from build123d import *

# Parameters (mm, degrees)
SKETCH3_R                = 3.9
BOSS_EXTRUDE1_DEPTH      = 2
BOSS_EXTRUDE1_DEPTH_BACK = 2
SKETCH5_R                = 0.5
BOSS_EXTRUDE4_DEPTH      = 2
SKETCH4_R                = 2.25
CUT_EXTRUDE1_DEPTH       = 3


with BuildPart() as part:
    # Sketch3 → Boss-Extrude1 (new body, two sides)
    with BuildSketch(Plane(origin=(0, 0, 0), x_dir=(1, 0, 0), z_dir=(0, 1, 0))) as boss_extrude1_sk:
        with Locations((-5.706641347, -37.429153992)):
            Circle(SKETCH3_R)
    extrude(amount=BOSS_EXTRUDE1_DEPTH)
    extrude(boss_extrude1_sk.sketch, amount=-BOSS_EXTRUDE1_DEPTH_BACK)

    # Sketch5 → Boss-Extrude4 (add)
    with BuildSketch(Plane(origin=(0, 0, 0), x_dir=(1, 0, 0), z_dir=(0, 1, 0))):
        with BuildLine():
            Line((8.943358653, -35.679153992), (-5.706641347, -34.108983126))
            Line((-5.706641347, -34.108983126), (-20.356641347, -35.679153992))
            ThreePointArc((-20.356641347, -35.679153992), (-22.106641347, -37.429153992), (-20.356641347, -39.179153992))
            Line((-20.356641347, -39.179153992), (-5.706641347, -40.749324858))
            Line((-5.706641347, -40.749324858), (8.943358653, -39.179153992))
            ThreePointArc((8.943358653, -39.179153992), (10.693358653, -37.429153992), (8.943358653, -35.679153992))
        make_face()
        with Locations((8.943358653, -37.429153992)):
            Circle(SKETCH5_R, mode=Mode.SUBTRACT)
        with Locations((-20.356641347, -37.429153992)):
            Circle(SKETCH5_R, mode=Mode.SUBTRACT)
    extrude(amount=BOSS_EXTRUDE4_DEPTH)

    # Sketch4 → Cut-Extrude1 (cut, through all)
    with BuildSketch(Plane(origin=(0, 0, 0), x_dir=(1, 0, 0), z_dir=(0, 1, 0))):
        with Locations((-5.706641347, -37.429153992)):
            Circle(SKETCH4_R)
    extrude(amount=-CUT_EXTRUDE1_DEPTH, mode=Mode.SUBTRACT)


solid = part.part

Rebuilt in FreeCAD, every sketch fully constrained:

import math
import FreeCAD as App
import Part
import Sketcher

V = App.Vector

doc = App.newDocument("Part")
body = doc.addObject("PartDesign::Body", "Body")

sketch1 = doc.addObject("Sketcher::SketchObject", "Sketch")
body.addObject(sketch1)
sketch1.AttachmentSupport = (doc.XZ_Plane, [""])
sketch1.MapMode = "FlatFace"
sketch1.addGeometry(Part.Circle(V(-5.7, 37.4, 0), V(0, 0, 1), 3.9), False)
sketch1.addConstraint(Sketcher.Constraint("Diameter", 0, 7.8))
sketch1.addConstraint(Sketcher.Constraint("DistanceX", 0, 3, -1, 1, 5.706641))
sketch1.addConstraint(Sketcher.Constraint("DistanceY", -1, 1, 0, 3, 37.429154))
pad1 = doc.addObject("PartDesign::Pad", "Pad")
body.addObject(pad1)
pad1.Profile = sketch1
pad1.Type = "TwoLengths"
pad1.Length = 2
pad1.Length2 = 2
pad1.Reversed = True

sketch2 = doc.addObject("Sketcher::SketchObject", "Sketch001")
body.addObject(sketch2)
sketch2.AttachmentSupport = (doc.XZ_Plane, [""])
sketch2.MapMode = "FlatFace"
sketch2.addGeometry(Part.LineSegment(V(8.9, 35.7, 0), V(-5.7, 34.1, 0)), False)
sketch2.addGeometry(Part.LineSegment(V(-5.7, 34.1, 0), V(-20.4, 35.7, 0)), False)
sketch2.addGeometry(Part.ArcOfCircle(Part.Circle(V(-20.4, 37.4, 0), V(0, 0, 1), 1.8), math.radians(90), math.radians(270)), False)
sketch2.addGeometry(Part.LineSegment(V(-20.4, 39.2, 0), V(-5.7, 40.7, 0)), False)
sketch2.addGeometry(Part.LineSegment(V(-5.7, 40.7, 0), V(8.9, 39.2, 0)), False)
sketch2.addGeometry(Part.ArcOfCircle(Part.Circle(V(8.9, 37.4, 0), V(0, 0, 1), 1.8), math.radians(-90), math.radians(90)), False)
sketch2.addGeometry(Part.Circle(V(-20.4, 37.4, 0), V(0, 0, 1), 0.5), False)
sketch2.addGeometry(Part.Circle(V(8.9, 37.4, 0), V(0, 0, 1), 0.5), False)
sketch2.addConstraint(Sketcher.Constraint("Coincident", 0, 2, 1, 1))
sketch2.addConstraint(Sketcher.Constraint("Coincident", 1, 2, 2, 2))
sketch2.addConstraint(Sketcher.Constraint("Coincident", 2, 1, 3, 1))
sketch2.addConstraint(Sketcher.Constraint("Coincident", 3, 2, 4, 1))
sketch2.addConstraint(Sketcher.Constraint("Coincident", 4, 2, 5, 2))
sketch2.addConstraint(Sketcher.Constraint("Coincident", 5, 1, 0, 1))
sketch2.addConstraint(Sketcher.Constraint("Coincident", 6, 3, 2, 3))
sketch2.addConstraint(Sketcher.Constraint("Coincident", 7, 3, 5, 3))
sketch2.addConstraint(Sketcher.Constraint("Equal", 2, 5))
sketch2.addConstraint(Sketcher.Constraint("Equal", 6, 7))
sketch2.addConstraint(Sketcher.Constraint("Parallel", 0, 3))
sketch2.addConstraint(Sketcher.Constraint("Parallel", 1, 4))
sketch2.addConstraint(Sketcher.Constraint("Horizontal", 2, 3, 5, 3))
sketch2.addConstraint(Sketcher.Constraint("Vertical", 6, 3, 1, 2))
sketch2.addConstraint(Sketcher.Constraint("Vertical", 1, 2, 2, 1))
sketch2.addConstraint(Sketcher.Constraint("Vertical", 0, 2, 3, 2))
sketch2.addConstraint(Sketcher.Constraint("Vertical", 7, 3, 4, 2))
sketch2.addConstraint(Sketcher.Constraint("Vertical", 4, 2, 5, 1))
sketch2.addConstraint(Sketcher.Constraint("Diameter", 6, 1.0))
sketch2.addConstraint(Sketcher.Constraint("Radius", 2, 1.75))
sketch2.addConstraint(Sketcher.Constraint("DistanceX", 2, 3, 5, 3, 29.3))
sketch2.addConstraint(Sketcher.Constraint("DistanceX", 2, 3, -1, 1, 20.356641))
sketch2.addConstraint(Sketcher.Constraint("DistanceY", 0, 2, 2, 3, 3.320171))
sketch2.addConstraint(Sketcher.Constraint("DistanceY", -1, 1, 2, 3, 37.429154))
pad2 = doc.addObject("PartDesign::Pad", "Pad001")
body.addObject(pad2)
pad2.Profile = sketch2
pad2.Length = 2
pad2.Reversed = True

sketch3 = doc.addObject("Sketcher::SketchObject", "Sketch002")
body.addObject(sketch3)
sketch3.AttachmentSupport = (doc.XZ_Plane, [""])
sketch3.MapMode = "FlatFace"
sketch3.addGeometry(Part.Circle(V(-5.7, 37.4, 0), V(0, 0, 1), 2.2), False)
sketch3.addConstraint(Sketcher.Constraint("Diameter", 0, 4.5))
sketch3.addConstraint(Sketcher.Constraint("DistanceX", 0, 3, -1, 1, 5.706641))
sketch3.addConstraint(Sketcher.Constraint("DistanceY", -1, 1, 0, 3, 37.429154))
pocket1 = doc.addObject("PartDesign::Pocket", "Pocket")
body.addObject(pocket1)
pocket1.Profile = sketch3
pocket1.Type = "ThroughAll"
pocket1.Reversed = True

doc.recompute()
